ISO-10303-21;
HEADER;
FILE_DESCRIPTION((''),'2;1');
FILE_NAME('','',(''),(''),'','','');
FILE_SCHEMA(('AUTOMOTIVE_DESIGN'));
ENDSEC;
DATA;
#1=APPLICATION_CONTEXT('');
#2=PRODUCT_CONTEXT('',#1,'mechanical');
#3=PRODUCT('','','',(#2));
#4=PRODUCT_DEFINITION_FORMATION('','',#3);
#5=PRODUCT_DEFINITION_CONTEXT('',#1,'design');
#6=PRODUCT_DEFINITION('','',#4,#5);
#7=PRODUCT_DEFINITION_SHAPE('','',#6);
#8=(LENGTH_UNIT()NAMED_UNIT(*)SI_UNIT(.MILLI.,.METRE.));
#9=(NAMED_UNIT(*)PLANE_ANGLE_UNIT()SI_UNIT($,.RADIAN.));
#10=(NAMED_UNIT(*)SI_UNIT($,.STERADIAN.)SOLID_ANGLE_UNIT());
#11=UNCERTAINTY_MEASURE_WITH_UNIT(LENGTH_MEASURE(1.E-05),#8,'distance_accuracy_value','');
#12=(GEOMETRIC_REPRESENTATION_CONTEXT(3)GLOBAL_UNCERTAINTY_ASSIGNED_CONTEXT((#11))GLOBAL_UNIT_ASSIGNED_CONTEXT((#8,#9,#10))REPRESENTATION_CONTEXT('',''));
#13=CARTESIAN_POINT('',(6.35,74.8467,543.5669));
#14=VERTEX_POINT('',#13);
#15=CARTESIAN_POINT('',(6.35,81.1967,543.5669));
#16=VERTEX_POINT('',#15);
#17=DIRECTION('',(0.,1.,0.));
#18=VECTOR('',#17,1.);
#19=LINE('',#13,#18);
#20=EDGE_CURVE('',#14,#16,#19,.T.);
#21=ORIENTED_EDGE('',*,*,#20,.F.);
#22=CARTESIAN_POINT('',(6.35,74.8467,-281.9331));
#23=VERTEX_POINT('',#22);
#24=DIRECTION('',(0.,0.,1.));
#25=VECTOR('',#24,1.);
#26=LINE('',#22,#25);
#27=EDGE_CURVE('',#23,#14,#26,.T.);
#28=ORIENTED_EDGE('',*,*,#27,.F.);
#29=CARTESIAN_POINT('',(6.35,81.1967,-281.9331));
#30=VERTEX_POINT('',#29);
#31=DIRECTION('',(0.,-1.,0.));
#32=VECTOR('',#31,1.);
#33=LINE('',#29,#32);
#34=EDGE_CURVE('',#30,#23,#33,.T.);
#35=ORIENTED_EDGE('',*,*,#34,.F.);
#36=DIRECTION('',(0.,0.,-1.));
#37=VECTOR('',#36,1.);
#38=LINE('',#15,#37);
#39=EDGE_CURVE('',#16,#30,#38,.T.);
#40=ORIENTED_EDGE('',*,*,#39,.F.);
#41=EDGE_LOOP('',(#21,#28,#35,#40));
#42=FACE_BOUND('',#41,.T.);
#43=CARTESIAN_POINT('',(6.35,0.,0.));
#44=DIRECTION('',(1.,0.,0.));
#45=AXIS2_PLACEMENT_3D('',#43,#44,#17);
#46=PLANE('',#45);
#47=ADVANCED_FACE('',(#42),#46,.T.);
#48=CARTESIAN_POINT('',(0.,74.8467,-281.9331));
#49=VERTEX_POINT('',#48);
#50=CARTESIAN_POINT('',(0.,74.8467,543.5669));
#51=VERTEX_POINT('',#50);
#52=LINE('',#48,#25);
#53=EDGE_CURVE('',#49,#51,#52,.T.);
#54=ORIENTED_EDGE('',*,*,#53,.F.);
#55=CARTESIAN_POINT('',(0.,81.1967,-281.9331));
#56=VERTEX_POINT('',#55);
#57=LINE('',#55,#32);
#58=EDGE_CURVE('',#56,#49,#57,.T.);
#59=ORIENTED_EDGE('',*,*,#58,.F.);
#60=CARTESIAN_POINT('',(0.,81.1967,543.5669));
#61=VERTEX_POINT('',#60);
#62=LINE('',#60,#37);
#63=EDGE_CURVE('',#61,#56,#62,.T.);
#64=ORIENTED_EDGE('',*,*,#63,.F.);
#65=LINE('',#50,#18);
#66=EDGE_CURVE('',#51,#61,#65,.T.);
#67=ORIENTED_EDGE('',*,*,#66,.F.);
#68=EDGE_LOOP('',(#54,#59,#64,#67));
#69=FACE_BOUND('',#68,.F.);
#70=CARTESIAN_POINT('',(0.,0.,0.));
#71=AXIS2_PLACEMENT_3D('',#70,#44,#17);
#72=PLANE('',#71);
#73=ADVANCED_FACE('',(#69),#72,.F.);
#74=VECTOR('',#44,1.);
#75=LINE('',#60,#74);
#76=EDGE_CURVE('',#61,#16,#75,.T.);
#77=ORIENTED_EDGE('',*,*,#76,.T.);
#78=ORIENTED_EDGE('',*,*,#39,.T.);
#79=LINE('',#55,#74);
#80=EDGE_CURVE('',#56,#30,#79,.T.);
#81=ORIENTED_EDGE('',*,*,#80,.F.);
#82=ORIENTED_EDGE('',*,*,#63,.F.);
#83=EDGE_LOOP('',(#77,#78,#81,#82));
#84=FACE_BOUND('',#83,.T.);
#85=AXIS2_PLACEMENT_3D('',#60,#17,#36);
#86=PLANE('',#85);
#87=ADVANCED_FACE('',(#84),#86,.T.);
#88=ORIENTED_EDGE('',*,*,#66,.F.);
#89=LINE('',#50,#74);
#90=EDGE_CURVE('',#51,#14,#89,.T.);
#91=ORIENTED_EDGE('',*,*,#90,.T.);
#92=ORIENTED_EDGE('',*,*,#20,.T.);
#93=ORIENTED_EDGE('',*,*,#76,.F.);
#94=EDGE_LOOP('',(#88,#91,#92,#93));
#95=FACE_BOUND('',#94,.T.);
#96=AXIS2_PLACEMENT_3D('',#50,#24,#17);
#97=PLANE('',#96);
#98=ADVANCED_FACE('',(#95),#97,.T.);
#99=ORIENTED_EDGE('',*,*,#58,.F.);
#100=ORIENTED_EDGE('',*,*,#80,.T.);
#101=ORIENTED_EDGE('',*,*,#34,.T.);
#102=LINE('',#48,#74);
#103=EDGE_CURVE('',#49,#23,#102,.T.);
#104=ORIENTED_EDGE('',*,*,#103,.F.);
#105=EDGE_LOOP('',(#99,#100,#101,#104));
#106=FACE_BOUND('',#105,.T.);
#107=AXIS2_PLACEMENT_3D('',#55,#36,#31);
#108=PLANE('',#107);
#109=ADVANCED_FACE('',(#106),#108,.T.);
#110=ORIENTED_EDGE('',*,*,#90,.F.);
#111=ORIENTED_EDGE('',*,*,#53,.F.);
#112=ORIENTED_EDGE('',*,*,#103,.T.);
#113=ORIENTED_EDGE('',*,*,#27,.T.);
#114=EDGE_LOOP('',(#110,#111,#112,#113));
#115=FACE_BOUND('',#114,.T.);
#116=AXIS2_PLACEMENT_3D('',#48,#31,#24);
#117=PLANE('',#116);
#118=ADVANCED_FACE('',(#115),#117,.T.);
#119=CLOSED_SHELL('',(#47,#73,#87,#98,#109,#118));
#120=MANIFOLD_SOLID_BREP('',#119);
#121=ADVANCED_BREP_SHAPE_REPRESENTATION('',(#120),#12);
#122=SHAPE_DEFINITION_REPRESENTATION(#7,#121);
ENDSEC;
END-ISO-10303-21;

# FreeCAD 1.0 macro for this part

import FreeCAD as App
import Part
import Sketcher
from FreeCAD import Vector
Q = App.Units.Quantity

doc = App.newDocument("Part")
body = doc.addObject("PartDesign::Body", "Body")

# Sketch on YZ plane
sketch1 = body.newObject("Sketcher::SketchObject", "Sketch")
sketch1.AttachmentSupport = (doc.getObject("YZ_Plane"), [""])
sketch1.MapMode = "FlatFace"
sketch1.addGeometry([
    Part.LineSegment(Vector(81.1967, 543.5669, 0), Vector(74.8467, 543.5669, 0)),
    Part.LineSegment(Vector(74.8467, 543.5669, 0), Vector(74.8467, -281.9331, 0)),
    Part.LineSegment(Vector(74.8467, -281.9331, 0), Vector(81.1967, -281.9331, 0)),
    Part.LineSegment(Vector(81.1967, -281.9331, 0), Vector(81.1967, 543.5669, 0)),
], False)
sketch1.addConstraint([
    Sketcher.Constraint("Coincident", 0, 2, 1, 1),
    Sketcher.Constraint("Coincident", 1, 2, 2, 1),
    Sketcher.Constraint("Coincident", 2, 2, 3, 1),
    Sketcher.Constraint("Coincident", 3, 2, 0, 1),
    Sketcher.Constraint("Horizontal", 0),
    Sketcher.Constraint("Vertical", 1),
    Sketcher.Constraint("Horizontal", 2),
    Sketcher.Constraint("Vertical", 3),
    Sketcher.Constraint("DistanceY", 1, 2, 1, 1, Q("32.5 in")),
    Sketcher.Constraint("DistanceX", 0, 2, 0, 1, Q("0.25 in")),
    Sketcher.Constraint("DistanceX", -1, 1, 0, 2, Q("74.8467 mm")),
    Sketcher.Constraint("DistanceY", -1, 1, 0, 2, Q("543.567 mm")),
])
pad1 = body.newObject("PartDesign::Pad", "Pad")
pad1.Profile = sketch1
pad1.Length = Q("0.25 in")

doc.recompute()
